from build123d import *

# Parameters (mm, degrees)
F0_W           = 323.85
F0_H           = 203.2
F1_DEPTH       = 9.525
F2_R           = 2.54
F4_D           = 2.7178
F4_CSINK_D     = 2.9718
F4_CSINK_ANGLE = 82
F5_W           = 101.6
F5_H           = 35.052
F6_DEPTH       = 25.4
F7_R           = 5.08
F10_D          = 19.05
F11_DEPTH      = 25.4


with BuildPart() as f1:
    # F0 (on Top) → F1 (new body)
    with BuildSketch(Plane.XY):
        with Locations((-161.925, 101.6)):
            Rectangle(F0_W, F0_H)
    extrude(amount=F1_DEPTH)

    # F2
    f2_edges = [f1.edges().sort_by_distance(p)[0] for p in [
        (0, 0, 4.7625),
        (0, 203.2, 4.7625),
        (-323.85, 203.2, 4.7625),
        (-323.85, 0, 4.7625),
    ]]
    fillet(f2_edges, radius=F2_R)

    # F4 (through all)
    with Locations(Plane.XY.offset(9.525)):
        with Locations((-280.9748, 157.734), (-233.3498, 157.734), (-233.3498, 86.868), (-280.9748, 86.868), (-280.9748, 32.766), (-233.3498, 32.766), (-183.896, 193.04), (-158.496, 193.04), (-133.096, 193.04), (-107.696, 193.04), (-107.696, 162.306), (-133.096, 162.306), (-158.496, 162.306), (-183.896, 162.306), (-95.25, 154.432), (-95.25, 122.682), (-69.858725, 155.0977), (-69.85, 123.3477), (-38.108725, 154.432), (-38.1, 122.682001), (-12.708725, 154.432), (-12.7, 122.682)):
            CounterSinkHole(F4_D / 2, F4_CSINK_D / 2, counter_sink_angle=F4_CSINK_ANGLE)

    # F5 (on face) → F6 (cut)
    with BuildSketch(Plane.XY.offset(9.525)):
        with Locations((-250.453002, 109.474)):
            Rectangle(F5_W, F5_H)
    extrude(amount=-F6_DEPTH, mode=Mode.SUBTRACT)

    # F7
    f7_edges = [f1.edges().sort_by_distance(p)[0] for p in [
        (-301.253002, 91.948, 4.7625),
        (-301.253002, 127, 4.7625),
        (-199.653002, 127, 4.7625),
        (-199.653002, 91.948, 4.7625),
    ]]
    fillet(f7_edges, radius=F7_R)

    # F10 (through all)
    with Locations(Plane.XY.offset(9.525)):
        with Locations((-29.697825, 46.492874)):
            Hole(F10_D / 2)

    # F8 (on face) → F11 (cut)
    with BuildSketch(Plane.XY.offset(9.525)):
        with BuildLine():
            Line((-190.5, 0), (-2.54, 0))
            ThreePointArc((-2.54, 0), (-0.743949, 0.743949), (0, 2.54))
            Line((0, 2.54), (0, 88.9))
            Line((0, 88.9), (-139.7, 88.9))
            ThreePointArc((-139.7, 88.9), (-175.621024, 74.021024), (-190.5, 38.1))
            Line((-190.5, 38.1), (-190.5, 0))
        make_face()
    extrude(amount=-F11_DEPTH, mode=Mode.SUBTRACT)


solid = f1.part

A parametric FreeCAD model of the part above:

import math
import FreeCAD as App
import Part
import Sketcher

V = App.Vector
Q = App.Units.Quantity


def edges_at(feature, points):
    """Names of the edges that pass closest to the given points."""
    edges = feature.Shape.Edges
    near = lambda p: min(range(len(edges)), key=lambda i: edges[i].distToShape(Part.Vertex(*p))[0])
    return sorted({f"Edge{near(p) + 1}" for p in points})

doc = App.newDocument("Part")
body = doc.addObject("PartDesign::Body", "Body")

sketch1 = doc.addObject("Sketcher::SketchObject", "Sketch")
body.addObject(sketch1)
sketch1.AttachmentSupport = (doc.XY_Plane, [""])
sketch1.MapMode = "FlatFace"
sketch1.addGeometry([
    Part.LineSegment(V(-323.85, 203.2, 0), V(-323.85, 0, 0)),
    Part.LineSegment(V(-323.85, 0, 0), V(0, 0, 0)),
    Part.LineSegment(V(0, 0, 0), V(0, 203.2, 0)),
    Part.LineSegment(V(0, 203.2, 0), V(-323.85, 203.2, 0)),
], False)
sketch1.addConstraint([
    Sketcher.Constraint("Coincident", 0, 2, 1, 1),
    Sketcher.Constraint("Coincident", 1, 2, 2, 1),
    Sketcher.Constraint("Coincident", 2, 2, 3, 1),
    Sketcher.Constraint("Coincident", 3, 2, 0, 1),
    Sketcher.Constraint("Vertical", 0),
    Sketcher.Constraint("Horizontal", 1),
    Sketcher.Constraint("Vertical", 2),
    Sketcher.Constraint("Horizontal", 3),
    Sketcher.Constraint("Coincident", 1, 2, -1, 1),
    Sketcher.Constraint("DistanceY", 0, 2, 0, 1, Q("8 in")),
    Sketcher.Constraint("DistanceX", 1, 1, 1, 2, Q("12.75 in")),
])
pad1 = doc.addObject("PartDesign::Pad", "Pad")
body.addObject(pad1)
pad1.Profile = sketch1
pad1.Length = Q("0.375 in")
doc.recompute()

fillet = doc.addObject("PartDesign::Fillet", "Fillet")
body.addObject(fillet)
fillet.Base = (pad1, edges_at(pad1, [
    (0, 0, 4.763),
    (0, 203.2, 4.763),
    (-323.85, 203.2, 4.763),
    (-323.85, 0, 4.763),
]))
fillet.Radius = Q("0.1 in")

sketch2 = doc.addObject("Sketcher::SketchObject", "Sketch001")
body.addObject(sketch2)
sketch2.AttachmentSupport = (doc.XY_Plane, [""])
sketch2.MapMode = "FlatFace"
sketch2.AttachmentOffset = App.Placement(V(0, 0, 0.375 * 25.4), App.Rotation())
sketch2.addGeometry([
    Part.Circle(V(-280.9748, 157.734, 0), V(0, 0, 1), 1.3589),
    Part.Circle(V(-233.3498, 157.734, 0), V(0, 0, 1), 1.3589),
    Part.Circle(V(-233.3498, 86.868, 0), V(0, 0, 1), 1.3589),
    Part.Circle(V(-280.9748, 86.868, 0), V(0, 0, 1), 1.3589),
    Part.Circle(V(-280.9748, 32.766, 0), V(0, 0, 1), 1.3589),
    Part.Circle(V(-233.3498, 32.766, 0), V(0, 0, 1), 1.3589),
    Part.Circle(V(-183.896, 193.04, 0), V(0, 0, 1), 1.3589),
    Part.Circle(V(-158.496, 193.04, 0), V(0, 0, 1), 1.3589),
    Part.Circle(V(-133.096, 193.04, 0), V(0, 0, 1), 1.3589),
    Part.Circle(V(-107.696, 193.04, 0), V(0, 0, 1), 1.3589),
    Part.Circle(V(-107.696, 162.306, 0), V(0, 0, 1), 1.3589),
    Part.Circle(V(-133.096, 162.306, 0), V(0, 0, 1), 1.3589),
    Part.Circle(V(-158.496, 162.306, 0), V(0, 0, 1), 1.3589),
    Part.Circle(V(-183.896, 162.306, 0), V(0, 0, 1), 1.3589),
    Part.Circle(V(-95.25, 154.432, 0), V(0, 0, 1), 1.3589),
    Part.Circle(V(-95.25, 122.682, 0), V(0, 0, 1), 1.3589),
    Part.Circle(V(-69.858725, 155.0977, 0), V(0, 0, 1), 1.3589),
    Part.Circle(V(-69.85, 123.3477, 0), V(0, 0, 1), 1.3589),
    Part.Circle(V(-38.108725, 154.432, 0), V(0, 0, 1), 1.3589),
    Part.Circle(V(-38.1, 122.682001, 0), V(0, 0, 1), 1.3589),
    Part.Circle(V(-12.708725, 154.432, 0), V(0, 0, 1), 1.3589),
    Part.Circle(V(-12.7, 122.682, 0), V(0, 0, 1), 1.3589),
], False)
sketch2.addConstraint([
    Sketcher.Constraint("Equal", 0, 1),
    Sketcher.Constraint("Equal", 1, 2),
    Sketcher.Constraint("Equal", 2, 3),
    Sketcher.Constraint("Equal", 3, 4),
    Sketcher.Constraint("Equal", 4, 5),
    Sketcher.Constraint("Equal", 5, 6),
    Sketcher.Constraint("Equal", 6, 7),
    Sketcher.Constraint("Equal", 7, 8),
    Sketcher.Constraint("Equal", 8, 9),
    Sketcher.Constraint("Equal", 9, 10),
    Sketcher.Constraint("Equal", 10, 11),
    Sketcher.Constraint("Equal", 11, 12),
    Sketcher.Constraint("Equal", 12, 13),
    Sketcher.Constraint("Equal", 13, 14),
    Sketcher.Constraint("Equal", 14, 15),
    Sketcher.Constraint("Equal", 15, 16),
    Sketcher.Constraint("Equal", 16, 17),
    Sketcher.Constraint("Equal", 17, 18),
    Sketcher.Constraint("Equal", 18, 19),
    Sketcher.Constraint("Equal", 19, 20),
    Sketcher.Constraint("Equal", 20, 21),
    Sketcher.Constraint("Horizontal", 0, 3, 1, 3),
    Sketcher.Constraint("Horizontal", 2, 3, 3, 3),
    Sketcher.Constraint("Horizontal", 4, 3, 5, 3),
    Sketcher.Constraint("Horizontal", 6, 3, 7, 3),
    Sketcher.Constraint("Horizontal", 7, 3, 8, 3),
    Sketcher.Constraint("Horizontal", 8, 3, 9, 3),
    Sketcher.Constraint("Horizontal", 10, 3, 11, 3),
    Sketcher.Constraint("Horizontal", 11, 3, 12, 3),
    Sketcher.Constraint("Horizontal", 12, 3, 13, 3),
    Sketcher.Constraint("Horizontal", 14, 3, 18, 3),
    Sketcher.Constraint("Horizontal", 15, 3, 19, 3),
    Sketcher.Constraint("Horizontal", 18, 3, 20, 3),
    Sketcher.Constraint("Horizontal", 19, 3, 21, 3),
    Sketcher.Constraint("Vertical", 1, 3, 2, 3),
    Sketcher.Constraint("Vertical", 0, 3, 3, 3),
    Sketcher.Constraint("Vertical", 3, 3, 4, 3),
    Sketcher.Constraint("Vertical", 2, 3, 5, 3),
    Sketcher.Constraint("Vertical", 9, 3, 10, 3),
    Sketcher.Constraint("Vertical", 8, 3, 11, 3),
    Sketcher.Constraint("Vertical", 7, 3, 12, 3),
    Sketcher.Constraint("Vertical", 6, 3, 13, 3),
    Sketcher.Constraint("Vertical", 14, 3, 15, 3),
    Sketcher.Constraint("Diameter", 0, Q("0.107 in")),
    Sketcher.Constraint("DistanceX", 6, 3, 7, 3, Q("1 in")),
    Sketcher.Constraint("DistanceX", 7, 3, 8, 3, Q("1 in")),
    Sketcher.Constraint("DistanceX", 8, 3, 9, 3, Q("1 in")),
    Sketcher.Constraint("DistanceX", 15, 3, 17, 3, Q("1 in")),
    Sketcher.Constraint("DistanceX", 18, 3, 20, 3, Q("1 in")),
    Sketcher.Constraint("DistanceX", 19, 3, 21, 3, Q("1 in")),
    Sketcher.Constraint("DistanceY", -1, 1, 6, 3, Q("7.6 in")),
    Sketcher.Constraint("DistanceX", 19, 3, -1, 1, Q("1.5 in")),
    Sketcher.Constraint("DistanceY", -1, 1, 0, 3, Q("6.21 in")),
    Sketcher.Constraint("DistanceY", -1, 1, 2, 3, Q("3.42 in")),
    Sketcher.Constraint("DistanceY", -1, 1, 4, 3, Q("1.29 in")),
    Sketcher.Constraint("DistanceX", 6, 3, -1, 1, Q("7.24 in")),
    Sketcher.Constraint("DistanceY", -1, 1, 10, 3, Q("6.39 in")),
    Sketcher.Constraint("DistanceX", 14, 3, -1, 1, Q("3.75 in")),
    Sketcher.Constraint("DistanceY", -1, 1, 14, 3, Q("6.08 in")),
    Sketcher.Constraint("DistanceY", -1, 1, 15, 3, Q("4.83 in")),
    Sketcher.Constraint("DistanceY", 17, 3, 16, 3, Q("1.25 in")),
    Sketcher.Constraint("DistanceX", 16, 3, 18, 3, Q("1.25 in")),
    Sketcher.Constraint("DistanceX", 0, 3, -1, 1, Q("11.062 in")),
    Sketcher.Constraint("DistanceX", 1, 3, -1, 1, Q("9.187 in")),
    Sketcher.Constraint("DistanceY", -1, 1, 16, 3, 155.0977),
    Sketcher.Constraint("DistanceX", 16, 3, -1, 1, 69.858725),
])
doc.recompute()
hole = doc.addObject("PartDesign::Hole", "Hole")
body.addObject(hole)
hole.Profile = sketch2
hole.ThreadType = "None"
hole.Diameter = Q("0.107 in")
hole.DepthType = "ThroughAll"
hole.HoleCutType = "Countersink"
hole.HoleCutDiameter = Q("0.117 in")
hole.HoleCutCountersinkAngle = 82

sketch3 = doc.addObject("Sketcher::SketchObject", "Sketch002")
body.addObject(sketch3)
sketch3.AttachmentSupport = (doc.XY_Plane, [""])
sketch3.MapMode = "FlatFace"
sketch3.AttachmentOffset = App.Placement(V(0, 0, 0.375 * 25.4), App.Rotation())
sketch3.addGeometry([
    Part.LineSegment(V(-301.253002, 127, 0), V(-301.253002, 91.948, 0)),
    Part.LineSegment(V(-301.253002, 91.948, 0), V(-199.653002, 91.948, 0)),
    Part.LineSegment(V(-199.653002, 91.948, 0), V(-199.653002, 127, 0)),
    Part.LineSegment(V(-199.653002, 127, 0), V(-301.253002, 127, 0)),
], False)
sketch3.addConstraint([
    Sketcher.Constraint("Coincident", 0, 2, 1, 1),
    Sketcher.Constraint("Coincident", 1, 2, 2, 1),
    Sketcher.Constraint("Coincident", 2, 2, 3, 1),
    Sketcher.Constraint("Coincident", 3, 2, 0, 1),
    Sketcher.Constraint("Vertical", 0),
    Sketcher.Constraint("Horizontal", 1),
    Sketcher.Constraint("Vertical", 2),
    Sketcher.Constraint("Horizontal", 3),
    Sketcher.Constraint("DistanceX", 1, 1, 1, 2, Q("4 in")),
    Sketcher.Constraint("DistanceY", -1, 1, 2, 2, Q("5 in")),
    Sketcher.Constraint("DistanceY", 0, 2, 0, 1, Q("1.38 in")),
    Sketcher.Constraint("DistanceX", 0, 2, -1, 1, 301.253002),
])
pocket1 = doc.addObject("PartDesign::Pocket", "Pocket")
body.addObject(pocket1)
pocket1.Profile = sketch3
pocket1.Length = Q("1 in")
doc.recompute()

fillet2 = doc.addObject("PartDesign::Fillet", "Fillet001")
body.addObject(fillet2)
fillet2.Base = (pocket1, edges_at(pocket1, [
    (-301.253, 91.948, 4.763),
    (-301.253, 127, 4.763),
    (-199.653, 127, 4.763),
    (-199.653, 91.948, 4.763),
]))
fillet2.Radius = Q("0.2 in")

sketch4 = doc.addObject("Sketcher::SketchObject", "Sketch003")
body.addObject(sketch4)
sketch4.AttachmentSupport = (doc.XY_Plane, [""])
sketch4.MapMode = "FlatFace"
sketch4.AttachmentOffset = App.Placement(V(0, 0, 0.375 * 25.4), App.Rotation())
sketch4.addGeometry(Part.Circle(V(-29.697825, 46.492874, 0), V(0, 0, 1), 9.525), False)
sketch4.addConstraint([
    Sketcher.Constraint("Diameter", 0, Q("0.75 in")),
    Sketcher.Constraint("DistanceX", 0, 3, -1, 1, 29.697825),
    Sketcher.Constraint("DistanceY", -1, 1, 0, 3, 46.492874),
])
doc.recompute()
hole2 = doc.addObject("PartDesign::Hole", "Hole001")
body.addObject(hole2)
hole2.Profile = sketch4
hole2.ThreadType = "None"
hole2.Diameter = Q("0.75 in")
hole2.DepthType = "ThroughAll"

sketch5 = doc.addObject("Sketcher::SketchObject", "Sketch004")
body.addObject(sketch5)
sketch5.AttachmentSupport = (doc.XY_Plane, [""])
sketch5.MapMode = "FlatFace"
sketch5.AttachmentOffset = App.Placement(V(0, 0, 0.375 * 25.4), App.Rotation())
sketch5.addGeometry([
    Part.LineSegment(V(-190.5, 0, 0), V(-2.54, 0, 0)),
    Part.ArcOfCircle(Part.Circle(V(-2.540001, 2.540001, 0), V(0, 0, 1), 2.540001), math.radians(-89.999983), math.radians(-0.000017)),
    Part.LineSegment(V(0, 2.54, 0), V(0, 88.9, 0)),
    Part.LineSegment(V(0, 88.9, 0), V(-139.7, 88.9, 0)),
    Part.ArcOfCircle(Part.Circle(V(-139.699998, 38.099998, 0), V(0, 0, 1), 50.800002), math.radians(90.000002), math.radians(179.999998)),
    Part.LineSegment(V(-190.5, 38.1, 0), V(-190.5, 0, 0)),
], False)
sketch5.addConstraint([
    Sketcher.Constraint("Tangent", 0, 2, 1, 1),
    Sketcher.Constraint("Tangent", 1, 2, 2, 1),
    Sketcher.Constraint("Coincident", 2, 2, 3, 1),
    Sketcher.Constraint("Tangent", 3, 2, 4, 1),
    Sketcher.Constraint("Tangent", 4, 2, 5, 1),
    Sketcher.Constraint("Coincident", 5, 2, 0, 1),
    Sketcher.Constraint("Horizontal", 0),
    Sketcher.Constraint("Vertical", 2),
    Sketcher.Constraint("Horizontal", 3),
    Sketcher.Constraint("Vertical", 5),
    Sketcher.Constraint("PointOnObject", 0, 2, -1),
    Sketcher.Constraint("PointOnObject", 1, 2, -2),
    Sketcher.Constraint("Radius", 4, Q("2.0000001 in")),
    Sketcher.Constraint("Radius", 1, Q("0.1 in")),
    Sketcher.Constraint("DistanceX", 0, 1, 0, 2, Q("7.4 in")),
    Sketcher.Constraint("DistanceY", 2, 1, 2, 2, Q("3.4 in")),
])
pocket2 = doc.addObject("PartDesign::Pocket", "Pocket001")
body.addObject(pocket2)
pocket2.Profile = sketch5
pocket2.Length = Q("1 in")

doc.recompute()
